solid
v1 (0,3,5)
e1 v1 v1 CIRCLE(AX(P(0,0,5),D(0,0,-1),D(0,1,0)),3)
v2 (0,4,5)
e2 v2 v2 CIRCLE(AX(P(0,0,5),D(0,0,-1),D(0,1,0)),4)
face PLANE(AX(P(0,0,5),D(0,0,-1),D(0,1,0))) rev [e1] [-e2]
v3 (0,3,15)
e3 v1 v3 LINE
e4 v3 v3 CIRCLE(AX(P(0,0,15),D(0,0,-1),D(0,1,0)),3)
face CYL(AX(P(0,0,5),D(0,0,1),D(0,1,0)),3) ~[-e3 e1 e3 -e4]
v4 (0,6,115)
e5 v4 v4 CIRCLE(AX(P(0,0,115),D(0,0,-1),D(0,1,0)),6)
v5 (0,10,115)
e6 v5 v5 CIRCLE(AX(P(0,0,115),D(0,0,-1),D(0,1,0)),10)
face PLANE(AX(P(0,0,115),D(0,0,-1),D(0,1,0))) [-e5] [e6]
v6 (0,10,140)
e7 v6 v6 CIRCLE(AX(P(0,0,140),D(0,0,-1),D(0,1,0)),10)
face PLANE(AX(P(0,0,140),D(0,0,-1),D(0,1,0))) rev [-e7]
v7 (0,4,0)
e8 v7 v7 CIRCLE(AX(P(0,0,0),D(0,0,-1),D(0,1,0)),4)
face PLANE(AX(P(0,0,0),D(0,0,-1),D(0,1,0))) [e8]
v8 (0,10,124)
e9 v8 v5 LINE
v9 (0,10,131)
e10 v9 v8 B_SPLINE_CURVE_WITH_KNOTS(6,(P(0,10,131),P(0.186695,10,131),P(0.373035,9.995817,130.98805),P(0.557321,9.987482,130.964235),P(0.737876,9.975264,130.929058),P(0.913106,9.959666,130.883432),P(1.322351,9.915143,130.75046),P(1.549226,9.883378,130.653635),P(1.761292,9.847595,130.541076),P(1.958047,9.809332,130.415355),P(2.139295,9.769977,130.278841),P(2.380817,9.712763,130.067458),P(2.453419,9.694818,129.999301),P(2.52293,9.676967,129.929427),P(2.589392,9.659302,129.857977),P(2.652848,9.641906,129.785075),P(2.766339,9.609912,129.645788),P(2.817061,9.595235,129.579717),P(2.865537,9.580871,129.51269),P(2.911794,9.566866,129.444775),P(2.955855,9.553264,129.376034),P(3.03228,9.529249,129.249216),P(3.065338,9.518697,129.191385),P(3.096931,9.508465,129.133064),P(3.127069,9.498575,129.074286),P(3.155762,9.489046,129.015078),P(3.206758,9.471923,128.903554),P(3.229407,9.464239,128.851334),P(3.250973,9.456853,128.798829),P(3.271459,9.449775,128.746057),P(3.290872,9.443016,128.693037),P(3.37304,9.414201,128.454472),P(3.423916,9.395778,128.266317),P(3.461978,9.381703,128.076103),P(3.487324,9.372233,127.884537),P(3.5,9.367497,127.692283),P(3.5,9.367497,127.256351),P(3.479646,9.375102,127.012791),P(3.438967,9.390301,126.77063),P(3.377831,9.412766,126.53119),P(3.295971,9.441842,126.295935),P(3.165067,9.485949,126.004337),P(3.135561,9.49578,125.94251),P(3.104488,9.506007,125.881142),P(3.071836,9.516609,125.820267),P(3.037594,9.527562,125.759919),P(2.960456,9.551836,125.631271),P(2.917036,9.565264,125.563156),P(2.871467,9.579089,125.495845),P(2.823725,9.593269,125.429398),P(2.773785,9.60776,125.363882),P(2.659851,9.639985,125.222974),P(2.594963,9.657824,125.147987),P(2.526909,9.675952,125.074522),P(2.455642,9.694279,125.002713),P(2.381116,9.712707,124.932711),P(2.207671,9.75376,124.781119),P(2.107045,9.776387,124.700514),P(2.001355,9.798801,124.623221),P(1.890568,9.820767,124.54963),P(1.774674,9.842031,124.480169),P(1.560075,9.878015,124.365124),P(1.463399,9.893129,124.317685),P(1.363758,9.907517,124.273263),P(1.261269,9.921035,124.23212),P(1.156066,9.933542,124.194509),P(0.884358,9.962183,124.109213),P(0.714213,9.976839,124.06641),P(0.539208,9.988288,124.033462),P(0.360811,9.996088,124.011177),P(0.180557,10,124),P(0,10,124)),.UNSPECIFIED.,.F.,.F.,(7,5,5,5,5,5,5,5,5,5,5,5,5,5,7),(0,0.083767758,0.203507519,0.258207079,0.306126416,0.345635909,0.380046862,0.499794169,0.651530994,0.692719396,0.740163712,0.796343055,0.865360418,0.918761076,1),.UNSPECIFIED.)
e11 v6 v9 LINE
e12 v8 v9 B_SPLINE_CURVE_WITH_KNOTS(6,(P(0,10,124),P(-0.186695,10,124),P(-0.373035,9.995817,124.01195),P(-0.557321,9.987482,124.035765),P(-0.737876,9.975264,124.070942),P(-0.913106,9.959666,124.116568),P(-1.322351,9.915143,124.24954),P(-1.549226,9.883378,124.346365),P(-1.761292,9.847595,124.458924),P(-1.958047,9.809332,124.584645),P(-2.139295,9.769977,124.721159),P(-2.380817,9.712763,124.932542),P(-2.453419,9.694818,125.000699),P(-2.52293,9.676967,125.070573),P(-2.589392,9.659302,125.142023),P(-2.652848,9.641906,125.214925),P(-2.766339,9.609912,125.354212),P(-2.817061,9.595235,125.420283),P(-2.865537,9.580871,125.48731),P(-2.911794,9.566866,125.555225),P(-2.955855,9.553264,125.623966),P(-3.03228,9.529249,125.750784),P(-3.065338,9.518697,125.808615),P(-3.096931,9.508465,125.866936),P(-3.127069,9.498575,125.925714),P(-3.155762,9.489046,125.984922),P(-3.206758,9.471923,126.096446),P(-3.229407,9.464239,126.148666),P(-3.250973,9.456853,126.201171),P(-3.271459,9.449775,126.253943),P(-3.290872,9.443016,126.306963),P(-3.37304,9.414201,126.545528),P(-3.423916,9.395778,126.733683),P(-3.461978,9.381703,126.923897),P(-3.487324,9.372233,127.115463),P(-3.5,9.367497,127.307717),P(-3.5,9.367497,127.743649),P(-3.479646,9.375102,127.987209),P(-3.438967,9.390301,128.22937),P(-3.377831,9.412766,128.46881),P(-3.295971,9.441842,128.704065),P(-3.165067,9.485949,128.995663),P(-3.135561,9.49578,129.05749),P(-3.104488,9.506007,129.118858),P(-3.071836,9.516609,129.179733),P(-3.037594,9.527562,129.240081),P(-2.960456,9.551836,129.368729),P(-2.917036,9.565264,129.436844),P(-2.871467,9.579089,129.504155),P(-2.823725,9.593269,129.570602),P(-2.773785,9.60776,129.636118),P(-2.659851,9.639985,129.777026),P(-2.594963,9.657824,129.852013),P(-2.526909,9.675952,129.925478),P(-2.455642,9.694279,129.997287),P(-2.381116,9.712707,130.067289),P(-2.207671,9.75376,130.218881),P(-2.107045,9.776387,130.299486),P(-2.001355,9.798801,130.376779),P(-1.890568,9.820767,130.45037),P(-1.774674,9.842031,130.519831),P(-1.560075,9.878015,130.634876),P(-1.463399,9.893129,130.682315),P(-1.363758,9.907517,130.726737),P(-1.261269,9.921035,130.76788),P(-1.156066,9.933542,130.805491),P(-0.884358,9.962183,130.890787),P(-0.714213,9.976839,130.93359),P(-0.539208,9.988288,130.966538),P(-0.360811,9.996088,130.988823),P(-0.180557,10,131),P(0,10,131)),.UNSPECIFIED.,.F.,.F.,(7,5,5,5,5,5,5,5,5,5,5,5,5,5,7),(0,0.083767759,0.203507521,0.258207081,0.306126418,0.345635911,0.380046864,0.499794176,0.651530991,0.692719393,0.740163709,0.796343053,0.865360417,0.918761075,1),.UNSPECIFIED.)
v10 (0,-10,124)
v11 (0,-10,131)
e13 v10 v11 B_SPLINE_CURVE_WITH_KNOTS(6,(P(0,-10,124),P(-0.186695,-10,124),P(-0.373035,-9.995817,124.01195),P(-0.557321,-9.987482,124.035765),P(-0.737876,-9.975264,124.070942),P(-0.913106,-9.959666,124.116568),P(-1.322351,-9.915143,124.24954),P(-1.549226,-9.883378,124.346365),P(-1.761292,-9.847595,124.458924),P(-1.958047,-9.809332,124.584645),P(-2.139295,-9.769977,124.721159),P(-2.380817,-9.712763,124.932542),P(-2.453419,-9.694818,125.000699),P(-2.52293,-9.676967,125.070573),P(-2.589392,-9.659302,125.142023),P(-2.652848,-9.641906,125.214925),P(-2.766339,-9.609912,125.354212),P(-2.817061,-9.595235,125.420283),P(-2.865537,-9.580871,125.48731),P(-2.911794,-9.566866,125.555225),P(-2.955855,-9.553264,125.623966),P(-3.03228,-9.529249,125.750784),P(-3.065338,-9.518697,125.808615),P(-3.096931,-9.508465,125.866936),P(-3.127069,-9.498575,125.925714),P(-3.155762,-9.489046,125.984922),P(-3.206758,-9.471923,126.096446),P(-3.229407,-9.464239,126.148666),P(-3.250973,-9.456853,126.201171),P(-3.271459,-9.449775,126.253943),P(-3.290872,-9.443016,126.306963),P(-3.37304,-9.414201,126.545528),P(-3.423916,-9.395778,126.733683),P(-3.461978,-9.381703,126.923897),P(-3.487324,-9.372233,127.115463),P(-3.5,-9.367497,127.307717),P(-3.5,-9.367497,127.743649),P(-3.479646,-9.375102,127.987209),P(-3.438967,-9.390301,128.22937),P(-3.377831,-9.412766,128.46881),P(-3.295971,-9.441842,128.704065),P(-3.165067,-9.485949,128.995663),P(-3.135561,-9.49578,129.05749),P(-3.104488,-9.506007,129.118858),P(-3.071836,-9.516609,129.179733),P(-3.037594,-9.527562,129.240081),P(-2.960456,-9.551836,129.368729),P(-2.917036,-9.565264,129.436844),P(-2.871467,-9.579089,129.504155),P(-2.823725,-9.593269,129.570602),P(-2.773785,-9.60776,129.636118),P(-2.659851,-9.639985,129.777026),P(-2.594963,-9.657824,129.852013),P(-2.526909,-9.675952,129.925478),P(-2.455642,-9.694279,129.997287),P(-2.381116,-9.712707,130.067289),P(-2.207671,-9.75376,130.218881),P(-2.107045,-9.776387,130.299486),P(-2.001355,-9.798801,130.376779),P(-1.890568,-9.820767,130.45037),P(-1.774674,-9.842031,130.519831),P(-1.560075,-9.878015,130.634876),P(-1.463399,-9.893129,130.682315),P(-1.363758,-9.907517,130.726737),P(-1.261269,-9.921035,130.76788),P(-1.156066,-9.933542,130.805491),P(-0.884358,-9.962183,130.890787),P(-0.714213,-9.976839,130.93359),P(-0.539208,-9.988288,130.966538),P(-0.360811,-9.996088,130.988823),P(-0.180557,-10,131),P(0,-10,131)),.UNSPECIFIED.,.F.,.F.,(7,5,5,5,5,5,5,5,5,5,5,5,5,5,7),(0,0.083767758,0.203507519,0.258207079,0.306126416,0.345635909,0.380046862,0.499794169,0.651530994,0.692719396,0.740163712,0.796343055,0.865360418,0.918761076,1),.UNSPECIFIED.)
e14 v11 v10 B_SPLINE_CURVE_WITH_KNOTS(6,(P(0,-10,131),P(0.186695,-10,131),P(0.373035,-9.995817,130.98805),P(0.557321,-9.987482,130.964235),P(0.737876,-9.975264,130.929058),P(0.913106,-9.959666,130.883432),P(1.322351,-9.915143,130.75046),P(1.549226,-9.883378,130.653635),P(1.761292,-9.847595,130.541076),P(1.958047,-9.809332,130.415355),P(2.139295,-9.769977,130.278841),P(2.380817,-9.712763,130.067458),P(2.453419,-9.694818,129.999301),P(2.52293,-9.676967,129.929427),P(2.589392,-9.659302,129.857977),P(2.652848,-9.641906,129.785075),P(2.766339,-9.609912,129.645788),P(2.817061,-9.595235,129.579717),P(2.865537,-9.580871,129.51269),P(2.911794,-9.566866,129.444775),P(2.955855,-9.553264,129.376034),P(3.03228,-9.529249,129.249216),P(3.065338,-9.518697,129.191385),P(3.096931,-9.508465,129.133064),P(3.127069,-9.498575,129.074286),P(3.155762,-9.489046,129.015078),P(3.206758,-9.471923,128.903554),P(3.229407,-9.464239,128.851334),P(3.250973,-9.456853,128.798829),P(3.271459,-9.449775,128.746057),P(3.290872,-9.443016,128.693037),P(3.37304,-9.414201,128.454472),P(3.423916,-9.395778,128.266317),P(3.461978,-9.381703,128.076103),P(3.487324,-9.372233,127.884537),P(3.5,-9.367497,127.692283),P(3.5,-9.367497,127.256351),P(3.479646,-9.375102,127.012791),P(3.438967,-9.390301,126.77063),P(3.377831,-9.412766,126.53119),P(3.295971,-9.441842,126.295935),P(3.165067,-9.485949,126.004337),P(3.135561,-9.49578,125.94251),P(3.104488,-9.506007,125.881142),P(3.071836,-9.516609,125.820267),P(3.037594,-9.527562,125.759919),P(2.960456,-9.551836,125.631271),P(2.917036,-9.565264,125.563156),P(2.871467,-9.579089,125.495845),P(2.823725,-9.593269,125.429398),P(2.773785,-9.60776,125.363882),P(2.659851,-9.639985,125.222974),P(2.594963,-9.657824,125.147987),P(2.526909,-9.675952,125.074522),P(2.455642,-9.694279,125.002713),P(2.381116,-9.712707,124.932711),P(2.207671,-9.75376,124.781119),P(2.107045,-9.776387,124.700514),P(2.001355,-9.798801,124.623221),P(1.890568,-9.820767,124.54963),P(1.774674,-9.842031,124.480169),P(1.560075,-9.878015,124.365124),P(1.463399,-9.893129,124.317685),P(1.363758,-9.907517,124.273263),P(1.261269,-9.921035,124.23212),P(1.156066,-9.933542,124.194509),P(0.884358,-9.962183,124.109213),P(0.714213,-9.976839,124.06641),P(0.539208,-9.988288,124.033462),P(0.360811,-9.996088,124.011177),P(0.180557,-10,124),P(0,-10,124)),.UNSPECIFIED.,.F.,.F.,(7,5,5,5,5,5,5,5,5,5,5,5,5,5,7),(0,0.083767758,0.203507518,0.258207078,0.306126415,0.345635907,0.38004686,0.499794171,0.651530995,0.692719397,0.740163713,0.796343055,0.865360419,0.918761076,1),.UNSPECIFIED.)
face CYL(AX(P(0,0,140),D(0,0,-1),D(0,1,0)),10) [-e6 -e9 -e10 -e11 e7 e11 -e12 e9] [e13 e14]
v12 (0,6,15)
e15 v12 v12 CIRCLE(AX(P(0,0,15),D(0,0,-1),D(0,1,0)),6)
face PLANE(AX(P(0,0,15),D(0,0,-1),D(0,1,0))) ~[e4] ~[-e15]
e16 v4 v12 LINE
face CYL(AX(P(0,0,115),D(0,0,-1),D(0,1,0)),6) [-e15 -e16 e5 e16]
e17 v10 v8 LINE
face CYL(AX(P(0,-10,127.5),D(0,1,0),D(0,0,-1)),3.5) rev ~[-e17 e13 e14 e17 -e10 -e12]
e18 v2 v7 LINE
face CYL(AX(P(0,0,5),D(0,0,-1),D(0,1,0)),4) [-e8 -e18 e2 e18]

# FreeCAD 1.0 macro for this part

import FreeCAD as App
import Part
import Sketcher
from FreeCAD import Vector
Q = App.Units.Quantity


def add_polygon(sketch, points):
    """Adds a closed chain of lines whose ends are joined by coincident constraints."""
    first, n = sketch.GeometryCount, len(points)
    for a, b in zip(points, points[1:] + points[:1]):
        sketch.addGeometry(Part.LineSegment(App.Vector(*a, 0), App.Vector(*b, 0)), False)
    for i in range(n):
        sketch.addConstraint(Sketcher.Constraint("Coincident", first + i, 2, first + (i + 1) % n, 1))

doc = App.newDocument("Part")
body = doc.addObject("PartDesign::Body", "Body")

# Sketch on YZ plane
sketch1 = body.newObject("Sketcher::SketchObject", "Sketch")
sketch1.AttachmentSupport = (doc.getObject("YZ_Plane"), [""])
sketch1.MapMode = "FlatFace"
add_polygon(sketch1, [(10, 140), (0, 140), (0, 0), (4, 0), (4, 5), (3, 5), (3, 15), (6, 15), (6, 115), (10, 115)])  # lines 0-9
sketch1.addConstraint([
    Sketcher.Constraint("Horizontal", 0),
    Sketcher.Constraint("Vertical", 1),
    Sketcher.Constraint("Horizontal", 2),
    Sketcher.Constraint("Vertical", 3),
    Sketcher.Constraint("Horizontal", 4),
    Sketcher.Constraint("Vertical", 5),
    Sketcher.Constraint("Horizontal", 6),
    Sketcher.Constraint("Vertical", 7),
    Sketcher.Constraint("Horizontal", 8),
    Sketcher.Constraint("Vertical", 9),
    Sketcher.Constraint("Coincident", 1, 2, -1, 1),
    Sketcher.Constraint("Equal", 2, 8),
    Sketcher.Constraint("Equal", 0, 5),
    Sketcher.Constraint("DistanceY", 1, 2, 1, 1, Q("140 mm")),
    Sketcher.Constraint("DistanceY", 3, 1, 3, 2, Q("5 mm")),
    Sketcher.Constraint("DistanceY", 9, 1, 9, 2, Q("25 mm")),
    Sketcher.Constraint("DistanceY", -1, 1, 5, 2, Q("15 mm")),
    Sketcher.Constraint("DistanceX", -1, 1, 6, 2, Q("6 mm")),
    Sketcher.Constraint("DistanceX", 4, 2, 4, 1, Q("1 mm")),
])
revolution = body.newObject("PartDesign::Revolution", "Revolution")
revolution.Profile = sketch1
revolution.ReferenceAxis = (sketch1, ["V_Axis"])
revolution.Angle = 360

# Sketch on XZ plane
sketch2 = body.newObject("Sketcher::SketchObject", "Sketch001")
sketch2.AttachmentSupport = (doc.getObject("XZ_Plane"), [""])
sketch2.MapMode = "FlatFace"
sketch2.AttachmentOffset = App.Placement(Vector(0, 0, 10), App.Rotation())
sketch2.addGeometry(Part.Circle(Vector(0, 127.5, 0), Vector(0, 0, 1), 3.5), False)
sketch2.addConstraint([
    Sketcher.Constraint("PointOnObject", 0, 3, -2),
    Sketcher.Constraint("Diameter", 0, Q("7 mm")),
    Sketcher.Constraint("DistanceY", -1, 1, 0, 3, Q("127.5 mm")),
])
doc.recompute()
hole = body.newObject("PartDesign::Hole", "Hole")
hole.Profile = sketch2
hole.ThreadType = "None"
hole.Diameter = 7
hole.DepthType = "ThroughAll"

doc.recompute()
